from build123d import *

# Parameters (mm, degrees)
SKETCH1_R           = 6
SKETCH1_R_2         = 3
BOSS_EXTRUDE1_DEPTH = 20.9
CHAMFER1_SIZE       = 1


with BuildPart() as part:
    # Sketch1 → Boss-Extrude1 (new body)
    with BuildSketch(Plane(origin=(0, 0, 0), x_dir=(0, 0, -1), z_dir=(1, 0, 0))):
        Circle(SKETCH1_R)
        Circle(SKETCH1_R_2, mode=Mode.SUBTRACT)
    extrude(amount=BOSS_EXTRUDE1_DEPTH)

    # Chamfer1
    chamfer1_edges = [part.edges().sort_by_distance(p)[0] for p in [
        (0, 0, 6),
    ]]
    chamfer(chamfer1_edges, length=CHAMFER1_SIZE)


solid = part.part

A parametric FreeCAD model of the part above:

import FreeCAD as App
import Part
import Sketcher

V = App.Vector


def edges_at(feature, points):
    """Names of the edges that pass closest to the given points."""
    edges = feature.Shape.Edges
    near = lambda p: min(range(len(edges)), key=lambda i: edges[i].distToShape(Part.Vertex(*p))[0])
    return sorted({f"Edge{near(p) + 1}" for p in points})

doc = App.newDocument("Part")
body = doc.addObject("PartDesign::Body", "Body")

# Sketch on YZ plane
sketch1 = doc.addObject("Sketcher::SketchObject", "Sketch")
body.addObject(sketch1)
sketch1.AttachmentSupport = (doc.YZ_Plane, [""])
sketch1.MapMode = "FlatFace"
sketch1.addGeometry([
    Part.Circle(V(0, 0, 0), V(0, 0, 1), 6),
    Part.Circle(V(0, 0, 0), V(0, 0, 1), 3),
], False)
sketch1.addConstraint([
    Sketcher.Constraint("Coincident", 0, 3, -1, 1),
    Sketcher.Constraint("Coincident", 1, 3, -1, 1),
    Sketcher.Constraint("Diameter", 0, 12.0),
    Sketcher.Constraint("Diameter", 1, 6.0),
])
pad1 = doc.addObject("PartDesign::Pad", "Pad")
body.addObject(pad1)
pad1.Profile = sketch1
pad1.Length = 20.9
doc.recompute()

chamfer = doc.addObject("PartDesign::Chamfer", "Chamfer")
body.addObject(chamfer)
chamfer.Base = (pad1, edges_at(pad1, [(0, 0, 6)]))
chamfer.Size = 1

doc.recompute()
